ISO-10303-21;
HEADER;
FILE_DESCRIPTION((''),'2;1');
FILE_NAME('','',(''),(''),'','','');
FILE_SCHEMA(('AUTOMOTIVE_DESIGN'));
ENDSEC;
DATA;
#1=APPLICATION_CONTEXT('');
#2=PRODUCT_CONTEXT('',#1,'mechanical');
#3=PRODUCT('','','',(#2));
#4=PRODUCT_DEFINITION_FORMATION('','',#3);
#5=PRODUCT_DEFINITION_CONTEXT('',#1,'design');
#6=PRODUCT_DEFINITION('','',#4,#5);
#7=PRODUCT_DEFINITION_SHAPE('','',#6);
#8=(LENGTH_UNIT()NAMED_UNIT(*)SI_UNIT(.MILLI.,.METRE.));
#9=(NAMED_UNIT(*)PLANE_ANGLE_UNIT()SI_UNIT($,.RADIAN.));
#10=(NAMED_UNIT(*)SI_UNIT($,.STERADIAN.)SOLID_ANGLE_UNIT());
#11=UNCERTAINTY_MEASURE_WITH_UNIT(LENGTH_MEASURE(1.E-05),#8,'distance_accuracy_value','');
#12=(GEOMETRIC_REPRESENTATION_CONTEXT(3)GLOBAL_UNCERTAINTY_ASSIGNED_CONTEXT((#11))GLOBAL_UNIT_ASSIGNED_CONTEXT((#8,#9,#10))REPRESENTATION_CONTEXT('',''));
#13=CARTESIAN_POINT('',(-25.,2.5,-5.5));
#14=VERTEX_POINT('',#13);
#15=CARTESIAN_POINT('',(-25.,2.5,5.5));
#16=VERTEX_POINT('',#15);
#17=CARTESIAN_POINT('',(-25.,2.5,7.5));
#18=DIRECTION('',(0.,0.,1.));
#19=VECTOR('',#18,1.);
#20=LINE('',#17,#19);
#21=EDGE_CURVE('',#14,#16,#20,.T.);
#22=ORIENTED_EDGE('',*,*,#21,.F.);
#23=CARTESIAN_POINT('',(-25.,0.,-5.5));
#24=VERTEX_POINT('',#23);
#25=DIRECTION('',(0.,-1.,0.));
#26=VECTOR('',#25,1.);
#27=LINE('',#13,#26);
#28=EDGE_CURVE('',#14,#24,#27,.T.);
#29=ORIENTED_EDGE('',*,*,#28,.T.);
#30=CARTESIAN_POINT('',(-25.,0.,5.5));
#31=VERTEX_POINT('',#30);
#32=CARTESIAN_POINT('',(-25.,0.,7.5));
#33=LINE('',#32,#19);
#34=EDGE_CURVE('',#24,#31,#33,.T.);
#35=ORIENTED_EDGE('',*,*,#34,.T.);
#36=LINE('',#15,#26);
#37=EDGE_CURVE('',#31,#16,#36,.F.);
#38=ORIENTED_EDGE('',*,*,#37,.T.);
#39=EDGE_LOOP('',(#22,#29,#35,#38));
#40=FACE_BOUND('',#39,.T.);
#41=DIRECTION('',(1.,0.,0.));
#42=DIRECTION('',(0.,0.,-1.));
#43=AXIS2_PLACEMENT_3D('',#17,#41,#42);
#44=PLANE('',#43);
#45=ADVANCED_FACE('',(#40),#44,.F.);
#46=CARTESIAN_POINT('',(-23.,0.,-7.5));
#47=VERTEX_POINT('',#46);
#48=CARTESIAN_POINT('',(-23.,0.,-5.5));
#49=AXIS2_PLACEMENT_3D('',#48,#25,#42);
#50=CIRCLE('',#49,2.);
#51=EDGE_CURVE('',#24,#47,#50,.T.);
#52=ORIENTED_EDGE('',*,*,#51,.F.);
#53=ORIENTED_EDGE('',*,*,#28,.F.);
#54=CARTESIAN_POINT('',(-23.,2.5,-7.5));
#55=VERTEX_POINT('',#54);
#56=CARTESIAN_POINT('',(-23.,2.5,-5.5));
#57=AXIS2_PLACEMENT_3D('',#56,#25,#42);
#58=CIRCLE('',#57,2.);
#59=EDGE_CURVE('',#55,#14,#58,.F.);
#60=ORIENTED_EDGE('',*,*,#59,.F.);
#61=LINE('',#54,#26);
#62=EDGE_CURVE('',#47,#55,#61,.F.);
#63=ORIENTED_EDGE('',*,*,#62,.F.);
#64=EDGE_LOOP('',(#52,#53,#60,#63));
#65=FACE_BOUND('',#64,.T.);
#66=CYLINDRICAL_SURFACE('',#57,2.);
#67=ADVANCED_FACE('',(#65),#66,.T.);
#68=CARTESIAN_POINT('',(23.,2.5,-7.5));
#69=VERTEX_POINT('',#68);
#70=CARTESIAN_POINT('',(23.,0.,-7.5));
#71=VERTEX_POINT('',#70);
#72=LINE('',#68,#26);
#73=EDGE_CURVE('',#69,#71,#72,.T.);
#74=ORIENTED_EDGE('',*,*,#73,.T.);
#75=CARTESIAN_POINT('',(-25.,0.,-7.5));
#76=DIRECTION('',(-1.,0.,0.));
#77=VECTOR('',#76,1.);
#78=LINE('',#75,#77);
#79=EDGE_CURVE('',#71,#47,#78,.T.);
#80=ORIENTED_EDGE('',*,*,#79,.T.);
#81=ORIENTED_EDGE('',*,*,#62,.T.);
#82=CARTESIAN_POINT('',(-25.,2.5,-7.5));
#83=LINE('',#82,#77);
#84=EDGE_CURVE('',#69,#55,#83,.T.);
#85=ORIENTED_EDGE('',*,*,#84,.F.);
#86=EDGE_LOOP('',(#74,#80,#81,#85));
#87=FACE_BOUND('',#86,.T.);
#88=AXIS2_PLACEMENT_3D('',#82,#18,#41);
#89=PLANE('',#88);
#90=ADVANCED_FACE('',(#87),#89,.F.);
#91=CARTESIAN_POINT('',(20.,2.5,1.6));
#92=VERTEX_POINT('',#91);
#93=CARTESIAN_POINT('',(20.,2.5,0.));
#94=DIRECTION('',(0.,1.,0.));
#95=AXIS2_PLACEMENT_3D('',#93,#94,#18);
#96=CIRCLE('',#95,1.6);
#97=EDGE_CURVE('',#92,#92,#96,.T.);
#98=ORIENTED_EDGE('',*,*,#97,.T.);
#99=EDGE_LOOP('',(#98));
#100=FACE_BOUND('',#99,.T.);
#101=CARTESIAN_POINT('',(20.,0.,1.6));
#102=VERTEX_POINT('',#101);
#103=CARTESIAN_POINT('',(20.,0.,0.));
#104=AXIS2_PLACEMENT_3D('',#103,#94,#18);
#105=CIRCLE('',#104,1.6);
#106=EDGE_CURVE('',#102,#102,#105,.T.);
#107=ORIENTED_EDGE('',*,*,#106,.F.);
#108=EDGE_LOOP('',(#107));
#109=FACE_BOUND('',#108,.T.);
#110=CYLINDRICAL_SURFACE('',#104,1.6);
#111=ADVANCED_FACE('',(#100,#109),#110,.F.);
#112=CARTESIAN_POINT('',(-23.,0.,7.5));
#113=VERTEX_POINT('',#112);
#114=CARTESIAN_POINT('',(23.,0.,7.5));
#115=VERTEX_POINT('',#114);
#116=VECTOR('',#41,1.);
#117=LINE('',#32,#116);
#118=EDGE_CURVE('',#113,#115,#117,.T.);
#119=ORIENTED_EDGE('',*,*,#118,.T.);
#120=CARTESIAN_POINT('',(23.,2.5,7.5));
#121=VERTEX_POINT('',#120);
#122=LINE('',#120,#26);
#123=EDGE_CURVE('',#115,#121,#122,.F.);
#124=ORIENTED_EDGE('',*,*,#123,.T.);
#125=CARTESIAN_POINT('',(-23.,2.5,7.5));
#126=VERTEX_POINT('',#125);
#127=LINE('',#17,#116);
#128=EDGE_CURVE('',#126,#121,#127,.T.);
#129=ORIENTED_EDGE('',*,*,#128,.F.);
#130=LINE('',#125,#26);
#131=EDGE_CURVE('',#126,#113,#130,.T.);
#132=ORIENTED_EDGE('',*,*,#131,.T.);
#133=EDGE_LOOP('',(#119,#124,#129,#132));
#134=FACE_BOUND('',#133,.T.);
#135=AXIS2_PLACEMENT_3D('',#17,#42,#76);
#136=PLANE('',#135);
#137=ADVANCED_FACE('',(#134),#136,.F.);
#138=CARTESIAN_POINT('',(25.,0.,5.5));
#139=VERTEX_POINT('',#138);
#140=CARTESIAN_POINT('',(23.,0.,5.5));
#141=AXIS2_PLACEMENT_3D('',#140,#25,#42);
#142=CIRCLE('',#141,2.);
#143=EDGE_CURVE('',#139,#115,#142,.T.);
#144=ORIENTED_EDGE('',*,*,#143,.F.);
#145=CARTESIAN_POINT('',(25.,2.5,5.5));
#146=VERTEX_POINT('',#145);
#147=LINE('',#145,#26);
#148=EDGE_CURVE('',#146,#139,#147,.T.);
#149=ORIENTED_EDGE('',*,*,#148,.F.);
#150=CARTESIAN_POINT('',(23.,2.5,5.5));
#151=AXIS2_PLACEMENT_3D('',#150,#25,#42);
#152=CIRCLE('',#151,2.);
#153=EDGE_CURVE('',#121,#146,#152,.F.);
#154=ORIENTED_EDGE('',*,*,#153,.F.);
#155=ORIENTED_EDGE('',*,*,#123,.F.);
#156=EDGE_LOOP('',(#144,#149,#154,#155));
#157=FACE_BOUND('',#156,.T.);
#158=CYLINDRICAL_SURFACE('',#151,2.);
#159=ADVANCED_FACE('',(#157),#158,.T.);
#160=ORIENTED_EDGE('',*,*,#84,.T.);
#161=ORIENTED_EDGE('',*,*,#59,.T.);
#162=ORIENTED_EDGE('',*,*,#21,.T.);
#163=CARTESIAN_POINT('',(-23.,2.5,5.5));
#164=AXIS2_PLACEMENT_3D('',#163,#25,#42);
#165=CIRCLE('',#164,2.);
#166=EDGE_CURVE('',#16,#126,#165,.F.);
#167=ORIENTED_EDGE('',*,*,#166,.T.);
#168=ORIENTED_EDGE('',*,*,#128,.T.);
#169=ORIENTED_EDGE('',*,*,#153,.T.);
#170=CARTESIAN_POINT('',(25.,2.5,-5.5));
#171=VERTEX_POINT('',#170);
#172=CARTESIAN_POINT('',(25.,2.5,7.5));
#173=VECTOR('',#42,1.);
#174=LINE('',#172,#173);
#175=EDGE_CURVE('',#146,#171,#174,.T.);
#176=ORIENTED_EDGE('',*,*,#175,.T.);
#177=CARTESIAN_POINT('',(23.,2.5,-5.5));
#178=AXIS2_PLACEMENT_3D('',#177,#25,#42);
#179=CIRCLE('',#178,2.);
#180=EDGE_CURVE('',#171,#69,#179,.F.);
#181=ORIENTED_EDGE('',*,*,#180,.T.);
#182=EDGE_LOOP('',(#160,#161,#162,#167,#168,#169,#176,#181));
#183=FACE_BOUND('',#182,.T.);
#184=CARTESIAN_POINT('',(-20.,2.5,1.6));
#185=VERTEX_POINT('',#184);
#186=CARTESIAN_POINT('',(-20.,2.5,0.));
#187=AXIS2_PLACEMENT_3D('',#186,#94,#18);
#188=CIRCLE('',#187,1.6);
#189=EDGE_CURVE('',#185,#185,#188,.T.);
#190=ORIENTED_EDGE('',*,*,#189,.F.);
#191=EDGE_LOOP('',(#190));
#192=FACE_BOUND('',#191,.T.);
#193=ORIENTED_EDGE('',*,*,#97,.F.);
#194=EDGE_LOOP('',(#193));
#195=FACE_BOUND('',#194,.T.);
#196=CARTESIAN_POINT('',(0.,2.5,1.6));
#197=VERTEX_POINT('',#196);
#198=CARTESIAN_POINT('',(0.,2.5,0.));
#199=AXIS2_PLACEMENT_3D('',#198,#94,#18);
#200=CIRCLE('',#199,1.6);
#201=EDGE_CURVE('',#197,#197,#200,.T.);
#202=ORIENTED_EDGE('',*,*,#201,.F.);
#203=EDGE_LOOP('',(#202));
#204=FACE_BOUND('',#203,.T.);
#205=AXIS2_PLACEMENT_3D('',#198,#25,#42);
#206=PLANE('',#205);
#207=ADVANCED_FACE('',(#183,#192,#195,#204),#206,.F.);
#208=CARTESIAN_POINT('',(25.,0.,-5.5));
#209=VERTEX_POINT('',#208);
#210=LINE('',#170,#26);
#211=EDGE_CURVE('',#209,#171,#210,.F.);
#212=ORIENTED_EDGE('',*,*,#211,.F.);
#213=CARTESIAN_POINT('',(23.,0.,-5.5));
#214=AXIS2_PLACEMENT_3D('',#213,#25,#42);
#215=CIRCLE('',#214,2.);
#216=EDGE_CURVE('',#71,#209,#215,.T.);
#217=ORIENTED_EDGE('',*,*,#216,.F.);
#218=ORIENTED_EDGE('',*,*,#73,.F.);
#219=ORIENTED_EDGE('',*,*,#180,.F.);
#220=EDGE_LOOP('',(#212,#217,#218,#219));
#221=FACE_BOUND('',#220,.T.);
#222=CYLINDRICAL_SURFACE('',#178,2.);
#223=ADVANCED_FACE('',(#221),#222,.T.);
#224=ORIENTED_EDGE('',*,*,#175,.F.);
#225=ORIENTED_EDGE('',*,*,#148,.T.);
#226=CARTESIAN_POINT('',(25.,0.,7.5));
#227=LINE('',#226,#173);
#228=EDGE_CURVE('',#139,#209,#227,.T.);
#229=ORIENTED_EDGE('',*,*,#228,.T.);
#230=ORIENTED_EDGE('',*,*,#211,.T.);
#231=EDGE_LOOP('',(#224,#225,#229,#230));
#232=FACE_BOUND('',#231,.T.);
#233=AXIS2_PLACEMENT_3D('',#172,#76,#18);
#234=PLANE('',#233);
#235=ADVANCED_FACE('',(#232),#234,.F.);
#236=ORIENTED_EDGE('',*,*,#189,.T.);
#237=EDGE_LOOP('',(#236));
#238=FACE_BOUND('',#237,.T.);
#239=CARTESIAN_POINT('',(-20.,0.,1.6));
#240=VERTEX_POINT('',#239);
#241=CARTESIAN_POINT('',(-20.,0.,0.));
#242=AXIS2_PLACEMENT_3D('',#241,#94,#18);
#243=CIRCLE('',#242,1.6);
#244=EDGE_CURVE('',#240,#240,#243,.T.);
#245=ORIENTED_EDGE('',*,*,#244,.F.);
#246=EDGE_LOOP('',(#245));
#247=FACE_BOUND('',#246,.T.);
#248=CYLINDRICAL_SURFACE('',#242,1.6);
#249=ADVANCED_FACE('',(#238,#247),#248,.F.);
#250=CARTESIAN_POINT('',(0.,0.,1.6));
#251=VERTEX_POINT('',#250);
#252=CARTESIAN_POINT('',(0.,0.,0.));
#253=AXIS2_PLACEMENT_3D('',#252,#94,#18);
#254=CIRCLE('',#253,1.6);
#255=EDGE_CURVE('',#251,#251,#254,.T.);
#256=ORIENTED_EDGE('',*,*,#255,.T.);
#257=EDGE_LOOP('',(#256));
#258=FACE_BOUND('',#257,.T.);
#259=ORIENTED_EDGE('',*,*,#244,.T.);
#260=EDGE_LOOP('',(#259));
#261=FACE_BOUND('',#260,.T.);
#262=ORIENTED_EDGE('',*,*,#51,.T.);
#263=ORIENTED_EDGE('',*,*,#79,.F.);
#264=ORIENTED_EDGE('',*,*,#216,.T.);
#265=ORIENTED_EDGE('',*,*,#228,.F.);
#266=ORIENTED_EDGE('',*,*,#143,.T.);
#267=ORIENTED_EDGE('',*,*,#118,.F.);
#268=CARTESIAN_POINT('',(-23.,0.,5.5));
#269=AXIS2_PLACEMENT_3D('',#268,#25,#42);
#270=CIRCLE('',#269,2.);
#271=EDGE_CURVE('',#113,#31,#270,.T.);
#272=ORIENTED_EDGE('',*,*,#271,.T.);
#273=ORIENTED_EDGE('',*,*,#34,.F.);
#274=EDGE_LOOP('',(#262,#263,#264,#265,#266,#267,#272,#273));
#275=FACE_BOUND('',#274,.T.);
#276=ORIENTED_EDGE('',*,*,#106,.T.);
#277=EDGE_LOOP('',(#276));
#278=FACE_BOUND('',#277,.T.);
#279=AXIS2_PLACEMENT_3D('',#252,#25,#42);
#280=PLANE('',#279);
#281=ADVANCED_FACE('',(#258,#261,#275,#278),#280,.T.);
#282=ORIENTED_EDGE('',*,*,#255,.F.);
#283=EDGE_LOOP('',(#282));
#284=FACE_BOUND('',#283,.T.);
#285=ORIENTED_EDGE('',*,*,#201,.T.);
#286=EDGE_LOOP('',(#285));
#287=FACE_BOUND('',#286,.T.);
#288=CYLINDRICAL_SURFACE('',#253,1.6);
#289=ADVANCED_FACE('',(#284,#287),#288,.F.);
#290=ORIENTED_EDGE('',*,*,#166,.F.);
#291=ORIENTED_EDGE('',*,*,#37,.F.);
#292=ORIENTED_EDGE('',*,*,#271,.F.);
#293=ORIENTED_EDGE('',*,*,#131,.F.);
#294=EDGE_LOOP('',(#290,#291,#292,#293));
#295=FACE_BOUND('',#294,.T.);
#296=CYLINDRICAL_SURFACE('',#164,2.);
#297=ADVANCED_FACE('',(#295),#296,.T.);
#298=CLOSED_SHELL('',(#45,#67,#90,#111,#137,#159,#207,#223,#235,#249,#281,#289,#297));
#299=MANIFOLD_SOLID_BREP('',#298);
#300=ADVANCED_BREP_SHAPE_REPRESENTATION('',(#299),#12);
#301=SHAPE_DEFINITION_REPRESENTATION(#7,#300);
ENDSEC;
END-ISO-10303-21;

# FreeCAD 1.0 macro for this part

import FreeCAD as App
import Part
import Sketcher

V = App.Vector


def edges_at(feature, points):
    """Names of the edges that pass closest to the given points."""
    edges = feature.Shape.Edges
    near = lambda p: min(range(len(edges)), key=lambda i: edges[i].distToShape(Part.Vertex(*p))[0])
    return sorted({f"Edge{near(p) + 1}" for p in points})

doc = App.newDocument("Part")
body = doc.addObject("PartDesign::Body", "Body")

# Sketch on XZ plane
sketch1 = body.newObject("Sketcher::SketchObject", "Sketch")
sketch1.AttachmentSupport = (doc.getObject("XZ_Plane"), [""])
sketch1.MapMode = "FlatFace"
sketch1.addGeometry([
    Part.LineSegment(V(-25, -8, 0), V(-25, 8, 0)),
    Part.LineSegment(V(-25, 8, 0), V(25, 8, 0)),
    Part.LineSegment(V(25, 8, 0), V(25, -8, 0)),
    Part.LineSegment(V(25, -8, 0), V(-25, -8, 0)),
], False)
sketch1.addConstraint([
    Sketcher.Constraint("Coincident", 0, 2, 1, 1),
    Sketcher.Constraint("Coincident", 1, 2, 2, 1),
    Sketcher.Constraint("Coincident", 2, 2, 3, 1),
    Sketcher.Constraint("Coincident", 3, 2, 0, 1),
    Sketcher.Constraint("Vertical", 0),
    Sketcher.Constraint("Horizontal", 1),
    Sketcher.Constraint("Vertical", 2),
    Sketcher.Constraint("Horizontal", 3),
    Sketcher.Constraint("Symmetric", 0, 2, 2, 2, -1, 1),
    Sketcher.Constraint("DistanceX", 1, 1, 1, 2, 50.0),
    Sketcher.Constraint("DistanceY", 0, 1, 0, 2, 15.0),
])
pad1 = body.newObject("PartDesign::Pad", "Pad")
pad1.Profile = sketch1
pad1.Length = 2.5
pad1.Reversed = True

# Sketch on XZ plane
sketch2 = body.newObject("Sketcher::SketchObject", "Sketch001")
sketch2.AttachmentSupport = (doc.getObject("XZ_Plane"), [""])
sketch2.MapMode = "FlatFace"
sketch2.AttachmentOffset = App.Placement(V(0, 0, -2.5), App.Rotation())
sketch2.addGeometry([
    Part.Circle(V(0, 0, 0), V(0, 0, 1), 1.6),
    Part.Circle(V(-20, 0, 0), V(0, 0, 1), 1.6),
    Part.Circle(V(20, 0, 0), V(0, 0, 1), 1.6),
], False)
sketch2.addConstraint([
    Sketcher.Constraint("Coincident", 0, 3, -1, 1),
    Sketcher.Constraint("Equal", 0, 1),
    Sketcher.Constraint("Equal", 1, 2),
    Sketcher.Constraint("Symmetric", 1, 3, 2, 3, -1, 1),
    Sketcher.Constraint("PointOnObject", 1, 3, -1),
    Sketcher.Constraint("Diameter", 0, 3.2),
    Sketcher.Constraint("DistanceX", 1, 3, -1, 1, 20.0),
])
pocket1 = body.newObject("PartDesign::Pocket", "Pocket")
pocket1.Profile = sketch2
pocket1.Type = "ThroughAll"
pocket1.Reversed = True
doc.recompute()

fillet = body.newObject("PartDesign::Fillet", "Fillet")
fillet.Base = (pocket1, edges_at(pocket1, [
    (25, 1.25, 7.5),
    (-25, 1.25, 7.5),
    (-25, 1.25, -7.5),
    (25, 1.25, -7.5),
]))
fillet.Radius = 2

doc.recompute()
